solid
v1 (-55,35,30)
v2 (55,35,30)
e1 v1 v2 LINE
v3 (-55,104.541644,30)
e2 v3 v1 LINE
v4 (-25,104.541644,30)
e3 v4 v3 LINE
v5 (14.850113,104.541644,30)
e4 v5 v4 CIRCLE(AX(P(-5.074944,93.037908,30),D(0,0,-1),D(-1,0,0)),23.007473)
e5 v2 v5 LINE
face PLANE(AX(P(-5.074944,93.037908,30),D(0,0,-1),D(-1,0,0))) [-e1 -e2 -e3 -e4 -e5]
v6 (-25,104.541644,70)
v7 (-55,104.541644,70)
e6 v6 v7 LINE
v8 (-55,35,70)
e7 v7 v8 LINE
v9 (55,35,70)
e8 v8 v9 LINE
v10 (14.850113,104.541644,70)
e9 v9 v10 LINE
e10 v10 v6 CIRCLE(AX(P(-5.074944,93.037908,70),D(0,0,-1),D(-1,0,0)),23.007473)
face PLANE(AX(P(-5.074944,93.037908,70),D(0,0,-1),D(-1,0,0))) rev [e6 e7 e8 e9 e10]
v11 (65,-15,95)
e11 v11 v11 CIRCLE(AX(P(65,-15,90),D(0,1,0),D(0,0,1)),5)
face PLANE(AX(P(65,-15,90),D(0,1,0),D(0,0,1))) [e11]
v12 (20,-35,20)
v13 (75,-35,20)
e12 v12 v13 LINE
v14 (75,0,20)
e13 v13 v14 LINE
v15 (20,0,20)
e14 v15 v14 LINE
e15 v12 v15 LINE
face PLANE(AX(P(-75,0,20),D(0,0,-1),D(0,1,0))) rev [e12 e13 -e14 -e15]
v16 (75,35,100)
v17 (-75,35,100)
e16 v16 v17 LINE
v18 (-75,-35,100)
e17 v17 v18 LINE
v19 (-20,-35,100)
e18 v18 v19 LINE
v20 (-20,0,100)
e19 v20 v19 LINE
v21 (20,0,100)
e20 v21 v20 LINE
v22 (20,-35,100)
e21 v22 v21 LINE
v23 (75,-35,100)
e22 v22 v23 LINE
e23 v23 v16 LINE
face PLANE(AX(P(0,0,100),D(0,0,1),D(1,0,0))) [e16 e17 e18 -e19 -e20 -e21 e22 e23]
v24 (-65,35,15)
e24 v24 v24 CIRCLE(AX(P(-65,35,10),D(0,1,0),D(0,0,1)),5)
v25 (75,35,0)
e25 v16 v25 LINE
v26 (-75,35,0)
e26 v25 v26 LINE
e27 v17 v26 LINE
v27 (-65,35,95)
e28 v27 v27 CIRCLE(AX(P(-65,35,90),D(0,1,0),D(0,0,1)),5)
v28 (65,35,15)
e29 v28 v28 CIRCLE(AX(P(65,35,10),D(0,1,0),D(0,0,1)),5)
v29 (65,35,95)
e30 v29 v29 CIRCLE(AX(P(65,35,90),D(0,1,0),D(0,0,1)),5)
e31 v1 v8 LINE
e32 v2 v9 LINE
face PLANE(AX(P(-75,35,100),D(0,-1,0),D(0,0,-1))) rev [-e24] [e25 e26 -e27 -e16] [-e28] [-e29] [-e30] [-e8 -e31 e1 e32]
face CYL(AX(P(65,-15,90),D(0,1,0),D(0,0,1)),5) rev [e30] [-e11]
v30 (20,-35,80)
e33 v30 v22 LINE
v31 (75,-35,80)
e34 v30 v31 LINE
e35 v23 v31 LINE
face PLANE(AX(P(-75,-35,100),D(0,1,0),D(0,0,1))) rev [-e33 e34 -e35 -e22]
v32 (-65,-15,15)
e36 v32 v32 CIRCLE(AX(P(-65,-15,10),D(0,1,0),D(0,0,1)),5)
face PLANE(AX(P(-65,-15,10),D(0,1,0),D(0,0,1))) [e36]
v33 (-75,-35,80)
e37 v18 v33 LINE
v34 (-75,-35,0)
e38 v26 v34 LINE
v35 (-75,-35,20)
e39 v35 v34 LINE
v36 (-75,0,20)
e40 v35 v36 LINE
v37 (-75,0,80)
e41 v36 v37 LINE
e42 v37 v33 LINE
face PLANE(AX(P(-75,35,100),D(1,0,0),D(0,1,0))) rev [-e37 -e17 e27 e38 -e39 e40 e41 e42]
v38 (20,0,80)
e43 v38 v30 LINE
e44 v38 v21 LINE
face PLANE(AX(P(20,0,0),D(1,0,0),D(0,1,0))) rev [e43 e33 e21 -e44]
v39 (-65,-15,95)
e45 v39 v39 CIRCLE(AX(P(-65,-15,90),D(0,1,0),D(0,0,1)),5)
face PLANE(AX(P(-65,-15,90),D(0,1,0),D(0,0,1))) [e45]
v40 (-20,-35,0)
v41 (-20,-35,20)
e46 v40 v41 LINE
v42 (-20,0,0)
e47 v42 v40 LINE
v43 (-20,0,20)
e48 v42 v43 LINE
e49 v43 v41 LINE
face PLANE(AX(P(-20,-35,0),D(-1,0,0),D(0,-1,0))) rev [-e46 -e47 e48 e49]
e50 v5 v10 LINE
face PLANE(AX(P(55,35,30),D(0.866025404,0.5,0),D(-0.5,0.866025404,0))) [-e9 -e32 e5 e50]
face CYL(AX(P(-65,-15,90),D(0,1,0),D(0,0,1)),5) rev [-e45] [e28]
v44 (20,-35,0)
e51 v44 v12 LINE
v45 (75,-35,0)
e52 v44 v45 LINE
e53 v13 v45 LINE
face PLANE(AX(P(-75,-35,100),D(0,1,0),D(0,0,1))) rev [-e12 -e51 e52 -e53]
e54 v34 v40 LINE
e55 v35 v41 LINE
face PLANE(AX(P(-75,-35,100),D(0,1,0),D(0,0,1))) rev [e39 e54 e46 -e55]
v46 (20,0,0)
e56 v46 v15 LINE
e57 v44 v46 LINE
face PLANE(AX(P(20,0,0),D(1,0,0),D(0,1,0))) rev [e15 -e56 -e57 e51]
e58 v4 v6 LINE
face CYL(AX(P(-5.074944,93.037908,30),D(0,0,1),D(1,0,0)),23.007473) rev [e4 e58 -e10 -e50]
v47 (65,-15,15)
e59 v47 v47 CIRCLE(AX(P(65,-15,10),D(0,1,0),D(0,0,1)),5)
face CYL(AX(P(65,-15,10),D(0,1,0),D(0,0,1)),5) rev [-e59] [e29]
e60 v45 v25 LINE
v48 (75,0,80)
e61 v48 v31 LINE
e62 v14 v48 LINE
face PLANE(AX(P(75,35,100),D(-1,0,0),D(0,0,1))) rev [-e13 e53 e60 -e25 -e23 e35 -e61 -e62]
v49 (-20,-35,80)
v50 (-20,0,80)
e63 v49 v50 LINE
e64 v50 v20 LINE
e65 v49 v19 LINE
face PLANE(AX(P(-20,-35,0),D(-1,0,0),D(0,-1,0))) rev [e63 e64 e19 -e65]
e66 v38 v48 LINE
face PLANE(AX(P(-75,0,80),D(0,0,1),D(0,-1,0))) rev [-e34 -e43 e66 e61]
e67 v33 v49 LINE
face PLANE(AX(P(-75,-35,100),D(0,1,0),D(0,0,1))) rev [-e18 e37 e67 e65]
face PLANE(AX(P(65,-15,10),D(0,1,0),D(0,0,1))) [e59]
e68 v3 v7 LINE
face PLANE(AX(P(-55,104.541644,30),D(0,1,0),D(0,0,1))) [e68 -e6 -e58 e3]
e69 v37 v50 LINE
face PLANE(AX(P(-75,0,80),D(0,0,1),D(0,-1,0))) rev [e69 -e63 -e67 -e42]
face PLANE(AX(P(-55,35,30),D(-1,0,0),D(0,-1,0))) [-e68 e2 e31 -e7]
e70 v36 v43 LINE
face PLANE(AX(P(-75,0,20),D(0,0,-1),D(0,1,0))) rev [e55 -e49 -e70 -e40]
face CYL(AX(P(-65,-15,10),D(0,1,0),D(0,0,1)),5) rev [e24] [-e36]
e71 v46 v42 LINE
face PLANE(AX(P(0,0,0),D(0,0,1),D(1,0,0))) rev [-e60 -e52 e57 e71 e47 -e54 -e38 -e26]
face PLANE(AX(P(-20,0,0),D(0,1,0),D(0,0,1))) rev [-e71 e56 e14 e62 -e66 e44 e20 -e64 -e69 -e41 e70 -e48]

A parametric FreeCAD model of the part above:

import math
import FreeCAD as App
import Part
import Sketcher
Q = App.Units.Quantity


def add_polygon(sketch, points):
    """Adds a closed chain of lines whose ends are joined by coincident constraints."""
    first, n = sketch.GeometryCount, len(points)
    for a, b in zip(points, points[1:] + points[:1]):
        sketch.addGeometry(Part.LineSegment(App.Vector(*a, 0), App.Vector(*b, 0)), False)
    for i in range(n):
        sketch.addConstraint(Sketcher.Constraint("Coincident", first + i, 2, first + (i + 1) % n, 1))

doc = App.newDocument("Part")
params = doc.addObject("Spreadsheet::Sheet", "Params")
for row, (alias, value) in enumerate([
    ("sketch1_width", "150 mm"),
    ("sketch1_height", "70 mm"),
    ("pad1_length", "100 mm"),
    ("sketch2_width", "40 mm"),
    ("sketch2_height", "35 mm"),
    ("pocket1_length", "100 mm"),
    ("sketch3_width", "35 mm"),
    ("sketch3_height", "60 mm"),
    ("pocket2_length", "150 mm"),
    ("sketch4_width", "30 mm"),
    ("sketch4_width2", "110 mm"),
    ("pad2_length", "20 mm"),
    ("pad2_length2", "20 mm"),
    ("sketch5_diameter", "10 mm"),
    ("pocket3_length", "50 mm"),
], start=1):
    params.set(f"A{row}", alias)
    params.set(f"B{row}", "=" + value)
    params.setAlias(f"B{row}", alias)

body = doc.addObject("PartDesign::Body", "Body")

sketch1 = doc.addObject("Sketcher::SketchObject", "Sketch")
body.addObject(sketch1)
sketch1.AttachmentSupport = (doc.XY_Plane, [""])
sketch1.MapMode = "FlatFace"
add_polygon(sketch1, [(-75, 35), (-75, -35), (75, -35), (75, 35)])
sketch1.addConstraint([
    Sketcher.Constraint("Vertical", 0),
    Sketcher.Constraint("Horizontal", 1),
    Sketcher.Constraint("Vertical", 2),
    Sketcher.Constraint("Horizontal", 3),
    Sketcher.Constraint("Symmetric", 0, 2, 2, 2, -1, 1),
    Sketcher.Constraint("DistanceX", 1, 1, 1, 2, Q("150 mm")),
    Sketcher.Constraint("DistanceY", 0, 2, 0, 1, Q("70 mm")),
])
sketch1.setExpression("Constraints[9]", "Params.sketch1_width")
sketch1.setExpression("Constraints[10]", "Params.sketch1_height")
pad1 = doc.addObject("PartDesign::Pad", "Pad")
body.addObject(pad1)
pad1.Profile = sketch1
pad1.setExpression("Length", "Params.pad1_length")

sketch2 = doc.addObject("Sketcher::SketchObject", "Sketch001")
body.addObject(sketch2)
sketch2.AttachmentSupport = (doc.XY_Plane, [""])
sketch2.MapMode = "FlatFace"
sketch2.AttachmentOffset = App.Placement(App.Vector(0, 0, 100), App.Rotation())
add_polygon(sketch2, [(-20, 0), (-20, -35), (20, -35), (20, 0)])
sketch2.addConstraint([
    Sketcher.Constraint("Vertical", 0),
    Sketcher.Constraint("Horizontal", 1),
    Sketcher.Constraint("Vertical", 2),
    Sketcher.Constraint("Horizontal", 3),
    Sketcher.Constraint("Symmetric", 2, 2, 3, 2, -1, 1),
    Sketcher.Constraint("DistanceX", 1, 1, 1, 2, Q("40 mm")),
    Sketcher.Constraint("DistanceY", 0, 2, 0, 1, Q("35 mm")),
])
sketch2.setExpression("Constraints[9]", "Params.sketch2_width")
sketch2.setExpression("Constraints[10]", "Params.sketch2_height")
pocket1 = doc.addObject("PartDesign::Pocket", "Pocket")
body.addObject(pocket1)
pocket1.Profile = sketch2
pocket1.setExpression("Length", "Params.pocket1_length")

sketch3 = doc.addObject("Sketcher::SketchObject", "Sketch002")
body.addObject(sketch3)
sketch3.AttachmentSupport = (doc.YZ_Plane, [""])
sketch3.MapMode = "FlatFace"
sketch3.AttachmentOffset = App.Placement(App.Vector(0, 0, 75), App.Rotation())
add_polygon(sketch3, [(0, 80), (-35, 80), (-35, 20), (0, 20)])
sketch3.addConstraint([
    Sketcher.Constraint("Horizontal", 0),
    Sketcher.Constraint("Vertical", 1),
    Sketcher.Constraint("Horizontal", 2),
    Sketcher.Constraint("Vertical", 3),
    Sketcher.Constraint("PointOnObject", 2, 2, -2),
    Sketcher.Constraint("DistanceX", 0, 2, 0, 1, Q("35 mm")),
    Sketcher.Constraint("DistanceY", 1, 2, 1, 1, Q("60 mm")),
    Sketcher.Constraint("DistanceY", -1, 1, 0, 2, Q("80 mm")),
])
sketch3.setExpression("Constraints[9]", "Params.sketch3_width")
sketch3.setExpression("Constraints[10]", "Params.sketch3_height")
pocket2 = doc.addObject("PartDesign::Pocket", "Pocket001")
body.addObject(pocket2)
pocket2.Profile = sketch3
pocket2.setExpression("Length", "Params.pocket2_length")

sketch4 = doc.addObject("Sketcher::SketchObject", "Sketch003")
body.addObject(sketch4)
sketch4.AttachmentSupport = (doc.XY_Plane, [""])
sketch4.MapMode = "FlatFace"
sketch4.AttachmentOffset = App.Placement(App.Vector(0, 0, 50), App.Rotation())
sketch4.addGeometry([
    Part.LineSegment(App.Vector(55, 35, 0), App.Vector(14.850113, 104.541644, 0)),
    Part.ArcOfCircle(Part.Circle(App.Vector(-5.074944, 93.037908, 0), App.Vector(0, 0, 1), 23.007473), math.radians(150), math.radians(390)),
    Part.LineSegment(App.Vector(-25, 104.541644, 0), App.Vector(-55, 104.541644, 0)),
    Part.LineSegment(App.Vector(-55, 104.541644, 0), App.Vector(-55, 35, 0)),
    Part.LineSegment(App.Vector(-55, 35, 0), App.Vector(55, 35, 0)),
], False)
sketch4.addConstraint([
    Sketcher.Constraint("Tangent", 0, 2, 1, 2),
    Sketcher.Constraint("Coincident", 1, 1, 2, 1),
    Sketcher.Constraint("Coincident", 2, 2, 3, 1),
    Sketcher.Constraint("Coincident", 3, 2, 4, 1),
    Sketcher.Constraint("Coincident", 4, 2, 0, 1),
    Sketcher.Constraint("Horizontal", 2),
    Sketcher.Constraint("Vertical", 3),
    Sketcher.Constraint("Horizontal", 4),
    Sketcher.Constraint("Horizontal", 0, 2, 1, 1),
    Sketcher.Constraint("DistanceX", 2, 2, 2, 1, Q("30 mm")),
    Sketcher.Constraint("DistanceX", 4, 1, 4, 2, Q("110 mm")),
    Sketcher.Constraint("Angle", 0, Q("120 deg")),
    Sketcher.Constraint("DistanceX", 1, 1, -1, 1, Q("25 mm")),
    Sketcher.Constraint("DistanceY", -1, 1, 3, 2, Q("35 mm")),
    Sketcher.Constraint("Radius", 1, Q("23.007473 mm")),
])
sketch4.setExpression("Constraints[9]", "Params.sketch4_width")
sketch4.setExpression("Constraints[10]", "Params.sketch4_width2")
pad2 = doc.addObject("PartDesign::Pad", "Pad001")
body.addObject(pad2)
pad2.Profile = sketch4
pad2.Type = "TwoLengths"
pad2.setExpression("Length", "Params.pad2_length")
pad2.setExpression("Length2", "Params.pad2_length2")

sketch5 = doc.addObject("Sketcher::SketchObject", "Sketch004")
body.addObject(sketch5)
sketch5.AttachmentSupport = (doc.XZ_Plane, [""])
sketch5.MapMode = "FlatFace"
sketch5.AttachmentOffset = App.Placement(App.Vector(0, 0, -35), App.Rotation())
sketch5.addGeometry([
    Part.Circle(App.Vector(65, 10, 0), App.Vector(0, 0, 1), 5),
    Part.Circle(App.Vector(-65, 10, 0), App.Vector(0, 0, 1), 5),
    Part.Circle(App.Vector(-65, 90, 0), App.Vector(0, 0, 1), 5),
    Part.Circle(App.Vector(65, 90, 0), App.Vector(0, 0, 1), 5),
], False)
sketch5.addConstraint([
    Sketcher.Constraint("Equal", 0, 1),
    Sketcher.Constraint("Equal", 1, 2),
    Sketcher.Constraint("Equal", 2, 3),
    Sketcher.Constraint("Symmetric", 0, 3, 1, 3, -2),
    Sketcher.Constraint("Symmetric", 2, 3, 3, 3, -2),
    Sketcher.Constraint("Vertical", 1, 3, 2, 3),
    Sketcher.Constraint("Diameter", 0, Q("10 mm")),
    Sketcher.Constraint("DistanceX", -1, 1, 0, 3, Q("65 mm")),
    Sketcher.Constraint("DistanceY", -1, 1, 0, 3, Q("10 mm")),
    Sketcher.Constraint("DistanceY", -1, 1, 2, 3, Q("90 mm")),
])
sketch5.setExpression("Constraints[6]", "Params.sketch5_diameter")
pocket3 = doc.addObject("PartDesign::Pocket", "Pocket002")
body.addObject(pocket3)
pocket3.Profile = sketch5
pocket3.setExpression("Length", "Params.pocket3_length")
pocket3.Reversed = True

doc.recompute()
